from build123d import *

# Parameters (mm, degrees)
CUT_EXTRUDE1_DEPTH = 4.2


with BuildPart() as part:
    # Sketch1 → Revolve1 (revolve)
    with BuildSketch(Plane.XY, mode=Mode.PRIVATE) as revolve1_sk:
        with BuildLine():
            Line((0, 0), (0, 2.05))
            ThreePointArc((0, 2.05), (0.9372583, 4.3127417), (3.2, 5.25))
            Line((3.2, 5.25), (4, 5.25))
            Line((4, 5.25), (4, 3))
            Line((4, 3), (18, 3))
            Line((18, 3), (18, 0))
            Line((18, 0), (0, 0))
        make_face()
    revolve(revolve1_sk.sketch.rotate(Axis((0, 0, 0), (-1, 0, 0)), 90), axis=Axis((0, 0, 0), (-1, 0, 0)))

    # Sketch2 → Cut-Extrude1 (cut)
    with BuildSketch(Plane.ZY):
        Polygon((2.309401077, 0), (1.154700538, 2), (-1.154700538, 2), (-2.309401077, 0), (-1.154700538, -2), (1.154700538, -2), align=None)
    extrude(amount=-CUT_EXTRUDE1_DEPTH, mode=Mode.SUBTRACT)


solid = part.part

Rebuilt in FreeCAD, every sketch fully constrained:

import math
import FreeCAD as App
import Part
import Sketcher
Q = App.Units.Quantity


def add_polygon(sketch, points):
    """Adds a closed chain of lines whose ends are joined by coincident constraints."""
    first, n = sketch.GeometryCount, len(points)
    for a, b in zip(points, points[1:] + points[:1]):
        sketch.addGeometry(Part.LineSegment(App.Vector(*a, 0), App.Vector(*b, 0)), False)
    for i in range(n):
        sketch.addConstraint(Sketcher.Constraint("Coincident", first + i, 2, first + (i + 1) % n, 1))

doc = App.newDocument("Part")
params = doc.addObject("Spreadsheet::Sheet", "Params")
for row, (alias, value) in enumerate([
    ("sketch1_radius", "3.2 mm"),
    ("sketch1_width", "18 mm"),
    ("sketch1_width2", "14 mm"),
    ("sketch1_height", "3 mm"),
    ("sketch1_height2", "2.05 mm"),
    ("revolution_angle", "360 deg"),
    ("pocket1_length", "4.2 mm"),
], start=1):
    params.set(f"A{row}", alias)
    params.set(f"B{row}", "=" + value)
    params.setAlias(f"B{row}", alias)

body = doc.addObject("PartDesign::Body", "Body")

# Sketch on XY plane
sketch1 = doc.addObject("Sketcher::SketchObject", "Sketch")
body.addObject(sketch1)
sketch1.AttachmentSupport = (doc.XY_Plane, [""])
sketch1.MapMode = "FlatFace"
sketch1.addGeometry([
    Part.LineSegment(App.Vector(0, 2.05, 0), App.Vector(0, 0, 0)),  # 0
    Part.LineSegment(App.Vector(0, 0, 0), App.Vector(18, 0, 0)),  # 1
    Part.LineSegment(App.Vector(18, 0, 0), App.Vector(18, 3, 0)),  # 2
    Part.LineSegment(App.Vector(18, 3, 0), App.Vector(4, 3, 0)),  # 3
    Part.LineSegment(App.Vector(4, 3, 0), App.Vector(4, 5.25, 0)),  # 4
    Part.LineSegment(App.Vector(4, 5.25, 0), App.Vector(3.2, 5.25, 0)),  # 5
    Part.ArcOfCircle(Part.Circle(App.Vector(3.2, 2.05, 0), App.Vector(0, 0, 1), 3.2), math.radians(90), math.radians(180)),  # 6
], False)
sketch1.addConstraint([
    Sketcher.Constraint("Coincident", 0, 2, 1, 1),
    Sketcher.Constraint("Coincident", 1, 2, 2, 1),
    Sketcher.Constraint("Coincident", 2, 2, 3, 1),
    Sketcher.Constraint("Coincident", 3, 2, 4, 1),
    Sketcher.Constraint("Coincident", 4, 2, 5, 1),
    Sketcher.Constraint("Tangent", 5, 2, 6, 1),
    Sketcher.Constraint("Tangent", 6, 2, 0, 1),
    Sketcher.Constraint("Vertical", 0),
    Sketcher.Constraint("Horizontal", 1),
    Sketcher.Constraint("Vertical", 2),
    Sketcher.Constraint("Horizontal", 3),
    Sketcher.Constraint("Vertical", 4),
    Sketcher.Constraint("Horizontal", 5),
    Sketcher.Constraint("Coincident", 0, 2, -1, 1),
    Sketcher.Constraint("Radius", 6, Q("3.2 mm")),
    Sketcher.Constraint("DistanceX", 1, 1, 1, 2, Q("18 mm")),
    Sketcher.Constraint("DistanceX", 3, 2, 3, 1, Q("14 mm")),
    Sketcher.Constraint("DistanceY", 2, 1, 2, 2, Q("3 mm")),
    Sketcher.Constraint("DistanceY", 0, 2, 0, 1, Q("2.05 mm")),
])
sketch1.setExpression("Constraints[14]", "Params.sketch1_radius")
sketch1.setExpression("Constraints[15]", "Params.sketch1_width")
sketch1.setExpression("Constraints[16]", "Params.sketch1_width2")
sketch1.setExpression("Constraints[17]", "Params.sketch1_height")
sketch1.setExpression("Constraints[18]", "Params.sketch1_height2")
revolution = doc.addObject("PartDesign::Revolution", "Revolution")
body.addObject(revolution)
revolution.Profile = sketch1
revolution.ReferenceAxis = (sketch1, ["H_Axis"])
revolution.setExpression("Angle", "Params.revolution_angle")

# Sketch on YZ plane
sketch2 = doc.addObject("Sketcher::SketchObject", "Sketch001")
body.addObject(sketch2)
sketch2.AttachmentSupport = (doc.YZ_Plane, [""])
sketch2.MapMode = "FlatFace"
add_polygon(sketch2, [(0, 2.309401), (2, 1.154701), (2, -1.154701), (0, -2.309401), (-2, -1.154701), (-2, 1.154701)])  # lines 0-5
sketch2.addConstraint([
    Sketcher.Constraint("Vertical", 1),
    Sketcher.Constraint("Vertical", 4),
    Sketcher.Constraint("Symmetric", 0, 2, 3, 2, -1, 1),
    Sketcher.Constraint("Symmetric", 2, 2, 5, 2, -1, 1),
    Sketcher.Constraint("PointOnObject", 2, 2, -2),
    Sketcher.Constraint("Parallel", 2, 5),
    Sketcher.Constraint("Horizontal", 1, 2, 3, 2),
    Sketcher.Constraint("Angle", 0, Q("-30 deg")),
    Sketcher.Constraint("DistanceX", -1, 1, 0, 2, Q("2 mm")),
    Sketcher.Constraint("DistanceY", 1, 2, 1, 1, Q("2.309401 mm")),
])
pocket1 = doc.addObject("PartDesign::Pocket", "Pocket")
body.addObject(pocket1)
pocket1.Profile = sketch2
pocket1.setExpression("Length", "Params.pocket1_length")
pocket1.Reversed = True

doc.recompute()
